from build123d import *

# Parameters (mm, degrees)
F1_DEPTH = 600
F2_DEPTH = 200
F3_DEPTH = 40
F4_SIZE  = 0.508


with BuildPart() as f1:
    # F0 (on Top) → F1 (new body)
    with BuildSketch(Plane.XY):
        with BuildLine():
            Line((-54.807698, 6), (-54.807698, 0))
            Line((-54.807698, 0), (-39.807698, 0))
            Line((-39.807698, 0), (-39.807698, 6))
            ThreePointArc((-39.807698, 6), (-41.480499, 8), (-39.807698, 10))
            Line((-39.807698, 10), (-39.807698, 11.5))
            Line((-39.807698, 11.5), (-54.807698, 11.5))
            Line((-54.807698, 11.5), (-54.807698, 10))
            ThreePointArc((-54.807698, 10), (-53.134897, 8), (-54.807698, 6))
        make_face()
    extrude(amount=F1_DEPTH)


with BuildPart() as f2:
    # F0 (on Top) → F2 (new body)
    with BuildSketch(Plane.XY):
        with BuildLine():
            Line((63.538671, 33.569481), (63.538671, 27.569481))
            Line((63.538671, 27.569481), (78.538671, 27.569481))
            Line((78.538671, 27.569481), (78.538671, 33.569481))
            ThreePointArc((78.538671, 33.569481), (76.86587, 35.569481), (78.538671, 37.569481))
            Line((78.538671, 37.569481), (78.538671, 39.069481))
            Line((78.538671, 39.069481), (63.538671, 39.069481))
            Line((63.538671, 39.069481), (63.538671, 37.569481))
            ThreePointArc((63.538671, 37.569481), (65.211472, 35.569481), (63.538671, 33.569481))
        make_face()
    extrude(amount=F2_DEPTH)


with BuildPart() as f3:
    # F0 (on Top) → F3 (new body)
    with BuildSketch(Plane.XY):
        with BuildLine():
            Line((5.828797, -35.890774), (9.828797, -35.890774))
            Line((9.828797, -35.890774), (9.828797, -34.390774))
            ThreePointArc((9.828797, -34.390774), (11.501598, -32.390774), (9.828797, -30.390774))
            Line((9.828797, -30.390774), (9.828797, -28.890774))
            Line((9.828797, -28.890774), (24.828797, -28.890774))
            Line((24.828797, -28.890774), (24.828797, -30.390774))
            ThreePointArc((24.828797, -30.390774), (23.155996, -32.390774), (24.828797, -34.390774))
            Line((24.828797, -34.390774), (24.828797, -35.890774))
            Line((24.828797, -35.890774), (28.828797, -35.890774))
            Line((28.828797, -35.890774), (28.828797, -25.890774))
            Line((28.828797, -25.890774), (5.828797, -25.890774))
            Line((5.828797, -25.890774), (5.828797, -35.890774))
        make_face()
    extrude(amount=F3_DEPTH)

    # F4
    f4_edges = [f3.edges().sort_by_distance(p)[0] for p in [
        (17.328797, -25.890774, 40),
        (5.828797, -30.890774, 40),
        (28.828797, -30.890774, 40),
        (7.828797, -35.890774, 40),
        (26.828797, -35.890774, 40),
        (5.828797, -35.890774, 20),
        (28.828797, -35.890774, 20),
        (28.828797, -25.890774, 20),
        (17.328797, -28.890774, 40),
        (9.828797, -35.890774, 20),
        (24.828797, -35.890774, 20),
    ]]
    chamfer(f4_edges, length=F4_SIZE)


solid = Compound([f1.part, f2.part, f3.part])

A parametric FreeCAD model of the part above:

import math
import FreeCAD as App
import Part
import Sketcher


def edges_at(feature, points):
    """Names of the edges that pass closest to the given points."""
    edges = feature.Shape.Edges
    near = lambda p: min(range(len(edges)), key=lambda i: edges[i].distToShape(Part.Vertex(*p))[0])
    return sorted({f"Edge{near(p) + 1}" for p in points})

doc = App.newDocument("Part")
body = doc.addObject("PartDesign::Body", "Body")

# Sketch on XY plane
sketch1 = doc.addObject("Sketcher::SketchObject", "Sketch")
body.addObject(sketch1)
sketch1.AttachmentSupport = (doc.XY_Plane, [""])
sketch1.MapMode = "FlatFace"
sketch1.addGeometry([
    Part.LineSegment(App.Vector(-54.8, 6, 0), App.Vector(-54.8, 0, 0)),  # 0
    Part.LineSegment(App.Vector(-54.8, 0, 0), App.Vector(-39.8, 0, 0)),  # 1
    Part.LineSegment(App.Vector(-39.8, 0, 0), App.Vector(-39.8, 6, 0)),  # 2
    Part.ArcOfCircle(Part.Circle(App.Vector(-39.4, 8, 0), App.Vector(0, 0, 1), 2), math.radians(100), math.radians(260)),  # 3
    Part.LineSegment(App.Vector(-39.8, 10, 0), App.Vector(-39.8, 11.5, 0)),  # 4
    Part.LineSegment(App.Vector(-39.8, 11.5, 0), App.Vector(-54.8, 11.5, 0)),  # 5
    Part.LineSegment(App.Vector(-54.8, 11.5, 0), App.Vector(-54.8, 10, 0)),  # 6
    Part.ArcOfCircle(Part.Circle(App.Vector(-55.2, 8, 0), App.Vector(0, 0, 1), 2), math.radians(-80), math.radians(80)),  # 7
], False)
sketch1.addConstraint([
    Sketcher.Constraint("Coincident", 0, 2, 1, 1),
    Sketcher.Constraint("Coincident", 1, 2, 2, 1),
    Sketcher.Constraint("Coincident", 2, 2, 3, 2),
    Sketcher.Constraint("Coincident", 3, 1, 4, 1),
    Sketcher.Constraint("Coincident", 4, 2, 5, 1),
    Sketcher.Constraint("Coincident", 5, 2, 6, 1),
    Sketcher.Constraint("Coincident", 6, 2, 7, 2),
    Sketcher.Constraint("Coincident", 7, 1, 0, 1),
    Sketcher.Constraint("Vertical", 0),
    Sketcher.Constraint("Horizontal", 1),
    Sketcher.Constraint("Vertical", 2),
    Sketcher.Constraint("Vertical", 4),
    Sketcher.Constraint("Horizontal", 5),
    Sketcher.Constraint("Vertical", 6),
    Sketcher.Constraint("Equal", 3, 7),
    Sketcher.Constraint("PointOnObject", 0, 2, -1),
    Sketcher.Constraint("Horizontal", 3, 3, 7, 3),
    Sketcher.Constraint("Horizontal", 3, 1, 6, 2),
    Sketcher.Constraint("Horizontal", 2, 2, 7, 1),
    Sketcher.Constraint("Vertical", 2, 2, 3, 1),
    Sketcher.Constraint("DistanceX", 1, 1, 1, 2, 15.0),
    Sketcher.Constraint("DistanceY", 0, 2, 0, 1, 6.0),
    Sketcher.Constraint("DistanceY", 4, 1, 4, 2, 1.5),
    Sketcher.Constraint("DistanceY", -1, 1, 3, 3, 8.0),
    Sketcher.Constraint("Radius", 3, 2.032),
    Sketcher.Constraint("DistanceX", 3, 3, -1, 1, 39.448499),
])
pad1 = doc.addObject("PartDesign::Pad", "Pad")
body.addObject(pad1)
pad1.Profile = sketch1
pad1.Length = 600
body2 = doc.addObject("PartDesign::Body", "Body001")

# Sketch on XY plane
sketch2 = doc.addObject("Sketcher::SketchObject", "Sketch001")
body2.addObject(sketch2)
sketch2.AttachmentSupport = (doc.getObject("XY_Plane001"), [""])
sketch2.MapMode = "FlatFace"
sketch2.addGeometry([
    Part.LineSegment(App.Vector(63.5, 33.6, 0), App.Vector(63.5, 27.6, 0)),  # 0
    Part.LineSegment(App.Vector(63.5, 27.6, 0), App.Vector(78.5, 27.6, 0)),  # 1
    Part.LineSegment(App.Vector(78.5, 27.6, 0), App.Vector(78.5, 33.6, 0)),  # 2
    Part.ArcOfCircle(Part.Circle(App.Vector(78.9, 35.6, 0), App.Vector(0, 0, 1), 2), math.radians(100), math.radians(260)),  # 3
    Part.LineSegment(App.Vector(78.5, 37.6, 0), App.Vector(78.5, 39.1, 0)),  # 4
    Part.LineSegment(App.Vector(78.5, 39.1, 0), App.Vector(63.5, 39.1, 0)),  # 5
    Part.LineSegment(App.Vector(63.5, 39.1, 0), App.Vector(63.5, 37.6, 0)),  # 6
    Part.ArcOfCircle(Part.Circle(App.Vector(63.2, 35.6, 0), App.Vector(0, 0, 1), 2), math.radians(-80), math.radians(80)),  # 7
], False)
sketch2.addConstraint([
    Sketcher.Constraint("Coincident", 0, 2, 1, 1),
    Sketcher.Constraint("Coincident", 1, 2, 2, 1),
    Sketcher.Constraint("Coincident", 2, 2, 3, 2),
    Sketcher.Constraint("Coincident", 3, 1, 4, 1),
    Sketcher.Constraint("Coincident", 4, 2, 5, 1),
    Sketcher.Constraint("Coincident", 5, 2, 6, 1),
    Sketcher.Constraint("Coincident", 6, 2, 7, 2),
    Sketcher.Constraint("Coincident", 7, 1, 0, 1),
    Sketcher.Constraint("Vertical", 0),
    Sketcher.Constraint("Horizontal", 1),
    Sketcher.Constraint("Vertical", 2),
    Sketcher.Constraint("Vertical", 4),
    Sketcher.Constraint("Horizontal", 5),
    Sketcher.Constraint("Vertical", 6),
    Sketcher.Constraint("Equal", 3, 7),
    Sketcher.Constraint("Horizontal", 3, 3, 7, 3),
    Sketcher.Constraint("Horizontal", 3, 1, 6, 2),
    Sketcher.Constraint("Horizontal", 2, 2, 7, 1),
    Sketcher.Constraint("Vertical", 2, 2, 3, 1),
    Sketcher.Constraint("DistanceX", 1, 1, 1, 2, 15.0),
    Sketcher.Constraint("DistanceY", 0, 2, 0, 1, 6.0),
    Sketcher.Constraint("DistanceY", 4, 1, 4, 2, 1.5),
    Sketcher.Constraint("Radius", 3, 2.032),
    Sketcher.Constraint("DistanceY", 0, 2, 7, 3, 8.0),
    Sketcher.Constraint("DistanceX", -1, 1, 3, 3, 78.89787),
    Sketcher.Constraint("DistanceY", -1, 1, 3, 3, 35.569481),
])
pad2 = doc.addObject("PartDesign::Pad", "Pad001")
body2.addObject(pad2)
pad2.Profile = sketch2
pad2.Length = 200
body3 = doc.addObject("PartDesign::Body", "Body002")

# Sketch on XY plane
sketch3 = doc.addObject("Sketcher::SketchObject", "Sketch002")
body3.addObject(sketch3)
sketch3.AttachmentSupport = (doc.getObject("XY_Plane002"), [""])
sketch3.MapMode = "FlatFace"
sketch3.addGeometry([
    Part.LineSegment(App.Vector(5.8, -35.9, 0), App.Vector(9.8, -35.9, 0)),  # 0
    Part.LineSegment(App.Vector(9.8, -35.9, 0), App.Vector(9.8, -34.4, 0)),  # 1
    Part.ArcOfCircle(Part.Circle(App.Vector(9.5, -32.4, 0), App.Vector(0, 0, 1), 2), math.radians(-80), math.radians(80)),  # 2
    Part.LineSegment(App.Vector(9.8, -30.4, 0), App.Vector(9.8, -28.9, 0)),  # 3
    Part.LineSegment(App.Vector(9.8, -28.9, 0), App.Vector(24.8, -28.9, 0)),  # 4
    Part.LineSegment(App.Vector(24.8, -28.9, 0), App.Vector(24.8, -30.4, 0)),  # 5
    Part.ArcOfCircle(Part.Circle(App.Vector(25.2, -32.4, 0), App.Vector(0, 0, 1), 2), math.radians(100), math.radians(260)),  # 6
    Part.LineSegment(App.Vector(24.8, -34.4, 0), App.Vector(24.8, -35.9, 0)),  # 7
    Part.LineSegment(App.Vector(24.8, -35.9, 0), App.Vector(28.8, -35.9, 0)),  # 8
    Part.LineSegment(App.Vector(28.8, -35.9, 0), App.Vector(28.8, -25.9, 0)),  # 9
    Part.LineSegment(App.Vector(28.8, -25.9, 0), App.Vector(5.8, -25.9, 0)),  # 10
    Part.LineSegment(App.Vector(5.8, -25.9, 0), App.Vector(5.8, -35.9, 0)),  # 11
], False)
sketch3.addConstraint([
    Sketcher.Constraint("Coincident", 0, 2, 1, 1),
    Sketcher.Constraint("Coincident", 1, 2, 2, 1),
    Sketcher.Constraint("Coincident", 2, 2, 3, 1),
    Sketcher.Constraint("Coincident", 3, 2, 4, 1),
    Sketcher.Constraint("Coincident", 4, 2, 5, 1),
    Sketcher.Constraint("Coincident", 5, 2, 6, 1),
    Sketcher.Constraint("Coincident", 6, 2, 7, 1),
    Sketcher.Constraint("Coincident", 7, 2, 8, 1),
    Sketcher.Constraint("Coincident", 8, 2, 9, 1),
    Sketcher.Constraint("Coincident", 9, 2, 10, 1),
    Sketcher.Constraint("Coincident", 10, 2, 11, 1),
    Sketcher.Constraint("Coincident", 11, 2, 0, 1),
    Sketcher.Constraint("Horizontal", 0),
    Sketcher.Constraint("Vertical", 1),
    Sketcher.Constraint("Vertical", 3),
    Sketcher.Constraint("Horizontal", 4),
    Sketcher.Constraint("Vertical", 5),
    Sketcher.Constraint("Vertical", 7),
    Sketcher.Constraint("Horizontal", 8),
    Sketcher.Constraint("Vertical", 9),
    Sketcher.Constraint("Horizontal", 10),
    Sketcher.Constraint("Vertical", 11),
    Sketcher.Constraint("Equal", 2, 6),
    Sketcher.Constraint("Horizontal", 2, 3, 6, 3),
    Sketcher.Constraint("Horizontal", 2, 2, 5, 2),
    Sketcher.Constraint("Horizontal", 1, 2, 6, 2),
    Sketcher.Constraint("Horizontal", 0, 2, 7, 2),
    Sketcher.Constraint("Vertical", 1, 2, 2, 2),
    Sketcher.Constraint("Equal", 0, 8),
    Sketcher.Constraint("Equal", 1, 3),
    Sketcher.Constraint("DistanceX", 0, 1, 0, 2, 4.0),
    Sketcher.Constraint("DistanceX", 4, 1, 4, 2, 15.0),
    Sketcher.Constraint("DistanceY", 9, 1, 9, 2, 10.0),
    Sketcher.Constraint("DistanceY", 1, 1, 1, 2, 1.5),
    Sketcher.Constraint("Radius", 2, 2.032),
    Sketcher.Constraint("DistanceY", 1, 2, 2, 3, 2.0),
    Sketcher.Constraint("DistanceX", -1, 1, 2, 3, 9.469598),
    Sketcher.Constraint("DistanceY", 2, 3, -1, 1, 32.390774),
])
pad3 = doc.addObject("PartDesign::Pad", "Pad002")
body3.addObject(pad3)
pad3.Profile = sketch3
pad3.Length = 40
doc.recompute()

chamfer = doc.addObject("PartDesign::Chamfer", "Chamfer")
body3.addObject(chamfer)
chamfer.Base = (pad3, edges_at(pad3, [
    (17.329, -25.891, 40),
    (5.829, -30.891, 40),
    (28.829, -30.891, 40),
    (7.829, -35.891, 40),
    (26.829, -35.891, 40),
    (5.829, -35.891, 20),
    (28.829, -35.891, 20),
    (28.829, -25.891, 20),
    (17.329, -28.891, 40),
    (9.829, -35.891, 20),
    (24.829, -35.891, 20),
]))
chamfer.Size = 0.508

doc.recompute()
